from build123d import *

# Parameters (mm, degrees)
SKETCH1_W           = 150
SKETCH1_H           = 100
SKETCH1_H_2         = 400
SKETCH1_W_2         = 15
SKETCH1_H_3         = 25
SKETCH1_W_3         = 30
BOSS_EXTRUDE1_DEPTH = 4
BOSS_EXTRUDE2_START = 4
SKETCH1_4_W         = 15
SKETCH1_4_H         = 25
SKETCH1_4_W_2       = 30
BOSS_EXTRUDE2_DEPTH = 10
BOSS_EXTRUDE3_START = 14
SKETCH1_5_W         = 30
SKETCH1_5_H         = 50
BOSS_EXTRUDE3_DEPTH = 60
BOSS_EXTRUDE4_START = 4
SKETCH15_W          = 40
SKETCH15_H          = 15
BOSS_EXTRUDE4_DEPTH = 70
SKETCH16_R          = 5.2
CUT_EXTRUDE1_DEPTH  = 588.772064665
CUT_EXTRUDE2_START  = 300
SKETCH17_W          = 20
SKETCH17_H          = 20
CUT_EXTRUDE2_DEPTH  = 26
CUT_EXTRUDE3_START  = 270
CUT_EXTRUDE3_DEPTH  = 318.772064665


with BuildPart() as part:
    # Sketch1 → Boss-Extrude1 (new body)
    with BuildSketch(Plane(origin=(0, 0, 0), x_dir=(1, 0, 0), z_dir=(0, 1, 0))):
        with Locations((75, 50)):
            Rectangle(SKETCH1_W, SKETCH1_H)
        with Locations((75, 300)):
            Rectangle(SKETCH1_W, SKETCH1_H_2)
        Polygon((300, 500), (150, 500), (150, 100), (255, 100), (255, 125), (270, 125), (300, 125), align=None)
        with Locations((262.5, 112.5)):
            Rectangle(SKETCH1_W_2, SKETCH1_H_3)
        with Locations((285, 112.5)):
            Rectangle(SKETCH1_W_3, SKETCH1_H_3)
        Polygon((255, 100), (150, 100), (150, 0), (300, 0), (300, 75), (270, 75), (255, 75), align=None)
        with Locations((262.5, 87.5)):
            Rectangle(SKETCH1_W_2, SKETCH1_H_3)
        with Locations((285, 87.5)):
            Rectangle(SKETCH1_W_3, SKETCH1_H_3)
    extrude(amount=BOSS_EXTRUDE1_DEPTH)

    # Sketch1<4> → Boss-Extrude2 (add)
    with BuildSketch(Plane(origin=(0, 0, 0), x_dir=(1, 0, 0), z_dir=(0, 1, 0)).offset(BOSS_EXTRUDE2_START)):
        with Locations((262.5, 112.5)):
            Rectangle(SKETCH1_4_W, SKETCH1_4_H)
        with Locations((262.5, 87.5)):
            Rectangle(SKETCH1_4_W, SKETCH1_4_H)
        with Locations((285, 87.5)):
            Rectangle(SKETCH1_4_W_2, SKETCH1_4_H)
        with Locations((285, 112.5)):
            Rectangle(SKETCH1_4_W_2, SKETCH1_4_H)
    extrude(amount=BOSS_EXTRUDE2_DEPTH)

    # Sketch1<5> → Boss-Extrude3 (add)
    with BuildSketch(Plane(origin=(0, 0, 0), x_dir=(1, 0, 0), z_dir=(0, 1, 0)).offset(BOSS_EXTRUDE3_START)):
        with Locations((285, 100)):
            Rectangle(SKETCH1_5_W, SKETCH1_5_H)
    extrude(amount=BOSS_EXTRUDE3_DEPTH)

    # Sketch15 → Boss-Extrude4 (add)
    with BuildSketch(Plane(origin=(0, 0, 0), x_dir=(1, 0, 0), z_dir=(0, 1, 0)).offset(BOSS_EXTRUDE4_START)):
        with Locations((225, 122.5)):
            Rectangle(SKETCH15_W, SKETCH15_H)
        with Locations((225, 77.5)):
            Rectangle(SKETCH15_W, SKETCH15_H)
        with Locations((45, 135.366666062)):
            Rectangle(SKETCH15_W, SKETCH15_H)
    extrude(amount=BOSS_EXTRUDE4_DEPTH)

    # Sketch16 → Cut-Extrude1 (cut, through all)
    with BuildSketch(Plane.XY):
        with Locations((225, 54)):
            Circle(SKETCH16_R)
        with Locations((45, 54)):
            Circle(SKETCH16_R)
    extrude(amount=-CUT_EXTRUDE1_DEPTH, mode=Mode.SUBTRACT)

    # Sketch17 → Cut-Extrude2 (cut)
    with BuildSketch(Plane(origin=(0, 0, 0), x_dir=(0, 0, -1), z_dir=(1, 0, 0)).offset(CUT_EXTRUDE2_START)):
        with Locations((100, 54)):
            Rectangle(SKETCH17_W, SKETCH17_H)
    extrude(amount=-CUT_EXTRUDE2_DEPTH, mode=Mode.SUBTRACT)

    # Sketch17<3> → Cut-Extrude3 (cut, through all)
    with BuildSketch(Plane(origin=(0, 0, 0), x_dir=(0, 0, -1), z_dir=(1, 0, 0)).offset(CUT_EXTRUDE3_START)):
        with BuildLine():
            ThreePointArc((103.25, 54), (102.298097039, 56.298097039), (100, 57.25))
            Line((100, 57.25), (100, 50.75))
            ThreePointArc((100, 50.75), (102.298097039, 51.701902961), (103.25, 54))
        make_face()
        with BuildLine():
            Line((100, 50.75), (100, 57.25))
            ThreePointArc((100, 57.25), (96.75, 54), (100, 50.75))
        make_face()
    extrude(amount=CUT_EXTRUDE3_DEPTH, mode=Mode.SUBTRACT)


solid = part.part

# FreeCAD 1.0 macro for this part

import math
import FreeCAD as App
import Part
import Sketcher
from FreeCAD import Vector


def add_polygon(sketch, points):
    """Adds a closed chain of lines whose ends are joined by coincident constraints."""
    first, n = sketch.GeometryCount, len(points)
    for a, b in zip(points, points[1:] + points[:1]):
        sketch.addGeometry(Part.LineSegment(App.Vector(*a, 0), App.Vector(*b, 0)), False)
    for i in range(n):
        sketch.addConstraint(Sketcher.Constraint("Coincident", first + i, 2, first + (i + 1) % n, 1))

doc = App.newDocument("Part")
params = doc.addObject("Spreadsheet::Sheet", "Params")
for row, (alias, value) in enumerate([
    ("sketch1_width", "300 mm"),
    ("sketch1_height", "500 mm"),
    ("pad1_length", "4 mm"),
    ("sketch2_width", "45 mm"),
    ("sketch2_height", "50 mm"),
    ("pad2_length", "10 mm"),
    ("sketch3_width", "30 mm"),
    ("sketch3_height", "50 mm"),
    ("pad3_length", "60 mm"),
    ("sketch4_width", "40 mm"),
    ("sketch4_height", "15 mm"),
    ("pad4_length", "70 mm"),
    ("sketch5_diameter", "10.4 mm"),
    ("sketch6_width", "20 mm"),
    ("pocket2_length", "26 mm"),
    ("sketch7_radius", "3.25 mm"),
], start=1):
    params.set(f"A{row}", alias)
    params.set(f"B{row}", "=" + value)
    params.setAlias(f"B{row}", alias)

body = doc.addObject("PartDesign::Body", "Body")

# Sketch on XZ plane
sketch1 = doc.addObject("Sketcher::SketchObject", "Sketch")
body.addObject(sketch1)
sketch1.AttachmentSupport = (doc.XZ_Plane, [""])
sketch1.MapMode = "FlatFace"
add_polygon(sketch1, [(0, 0), (300, 0), (300, -500), (0, -500)])  # lines 0-3
sketch1.addConstraint([
    Sketcher.Constraint("Horizontal", 0),
    Sketcher.Constraint("Vertical", 1),
    Sketcher.Constraint("Horizontal", 2),
    Sketcher.Constraint("Vertical", 3),
    Sketcher.Constraint("Coincident", 3, 2, -1, 1),
    Sketcher.Constraint("DistanceX", 0, 1, 0, 2, 300.0),
    Sketcher.Constraint("DistanceY", 1, 2, 1, 1, 500.0),
])
sketch1.setExpression("Constraints[9]", "Params.sketch1_width")
sketch1.setExpression("Constraints[10]", "Params.sketch1_height")
pad1 = doc.addObject("PartDesign::Pad", "Pad")
body.addObject(pad1)
pad1.Profile = sketch1
pad1.setExpression("Length", "Params.pad1_length")
pad1.Reversed = True

# Sketch on XZ plane
sketch2 = doc.addObject("Sketcher::SketchObject", "Sketch001")
body.addObject(sketch2)
sketch2.AttachmentSupport = (doc.XZ_Plane, [""])
sketch2.MapMode = "FlatFace"
sketch2.AttachmentOffset = App.Placement(Vector(0, 0, -4), App.Rotation())
add_polygon(sketch2, [(255, -125), (255, -75), (300, -75), (300, -125)])  # lines 0-3
sketch2.addConstraint([
    Sketcher.Constraint("Vertical", 0),
    Sketcher.Constraint("Horizontal", 1),
    Sketcher.Constraint("Vertical", 2),
    Sketcher.Constraint("Horizontal", 3),
    Sketcher.Constraint("DistanceX", 1, 1, 1, 2, 45.0),
    Sketcher.Constraint("DistanceY", 0, 1, 0, 2, 50.0),
    Sketcher.Constraint("DistanceX", -1, 1, 0, 2, 255.0),
    Sketcher.Constraint("DistanceY", 0, 2, -1, 1, 75.0),
])
sketch2.setExpression("Constraints[8]", "Params.sketch2_width")
sketch2.setExpression("Constraints[9]", "Params.sketch2_height")
pad2 = doc.addObject("PartDesign::Pad", "Pad001")
body.addObject(pad2)
pad2.Profile = sketch2
pad2.setExpression("Length", "Params.pad2_length")
pad2.Reversed = True

# Sketch on XZ plane
sketch3 = doc.addObject("Sketcher::SketchObject", "Sketch002")
body.addObject(sketch3)
sketch3.AttachmentSupport = (doc.XZ_Plane, [""])
sketch3.MapMode = "FlatFace"
sketch3.AttachmentOffset = App.Placement(Vector(0, 0, -14), App.Rotation())
add_polygon(sketch3, [(270, -125), (270, -75), (300, -75), (300, -125)])  # lines 0-3
sketch3.addConstraint([
    Sketcher.Constraint("Vertical", 0),
    Sketcher.Constraint("Horizontal", 1),
    Sketcher.Constraint("Vertical", 2),
    Sketcher.Constraint("Horizontal", 3),
    Sketcher.Constraint("DistanceX", 1, 1, 1, 2, 30.0),
    Sketcher.Constraint("DistanceY", 0, 1, 0, 2, 50.0),
    Sketcher.Constraint("DistanceX", -1, 1, 0, 2, 270.0),
    Sketcher.Constraint("DistanceY", 0, 2, -1, 1, 75.0),
])
sketch3.setExpression("Constraints[8]", "Params.sketch3_width")
sketch3.setExpression("Constraints[9]", "Params.sketch3_height")
pad3 = doc.addObject("PartDesign::Pad", "Pad002")
body.addObject(pad3)
pad3.Profile = sketch3
pad3.setExpression("Length", "Params.pad3_length")
pad3.Reversed = True

# Sketch on XZ plane
sketch4 = doc.addObject("Sketcher::SketchObject", "Sketch003")
body.addObject(sketch4)
sketch4.AttachmentSupport = (doc.XZ_Plane, [""])
sketch4.MapMode = "FlatFace"
sketch4.AttachmentOffset = App.Placement(Vector(0, 0, -4), App.Rotation())
add_polygon(sketch4, [(205, -130), (205, -115), (245, -115), (245, -130)])  # lines 0-3
add_polygon(sketch4, [(205, -85), (205, -70), (245, -70), (245, -85)])  # lines 4-7
add_polygon(sketch4, [(25, -143), (25, -128), (65, -128), (65, -143)])  # lines 8-11
sketch4.addConstraint([
    Sketcher.Constraint("Vertical", 0),
    Sketcher.Constraint("Horizontal", 1),
    Sketcher.Constraint("Vertical", 2),
    Sketcher.Constraint("Horizontal", 3),
    Sketcher.Constraint("Vertical", 4),
    Sketcher.Constraint("Horizontal", 5),
    Sketcher.Constraint("Vertical", 6),
    Sketcher.Constraint("Horizontal", 7),
    Sketcher.Constraint("Vertical", 8),
    Sketcher.Constraint("Horizontal", 9),
    Sketcher.Constraint("Vertical", 10),
    Sketcher.Constraint("Horizontal", 11),
    Sketcher.Constraint("Vertical", 3, 2, 4, 2),
    Sketcher.Constraint("Vertical", 2, 2, 5, 2),
    Sketcher.Constraint("Equal", 7, 9),
    Sketcher.Constraint("Equal", 2, 4),
    Sketcher.Constraint("Equal", 6, 8),
    Sketcher.Constraint("DistanceX", 1, 1, 1, 2, 40.0),
    Sketcher.Constraint("DistanceY", 0, 1, 0, 2, 15.0),
    Sketcher.Constraint("DistanceX", -1, 1, 0, 2, 205.0),
    Sketcher.Constraint("DistanceY", 0, 2, -1, 1, 115.0),
    Sketcher.Constraint("DistanceY", 4, 2, -1, 1, 70.0),
    Sketcher.Constraint("DistanceX", -1, 1, 8, 2, 25.0),
    Sketcher.Constraint("DistanceY", 8, 2, -1, 1, 127.866666),
])
sketch4.setExpression("Constraints[29]", "Params.sketch4_width")
sketch4.setExpression("Constraints[30]", "Params.sketch4_height")
pad4 = doc.addObject("PartDesign::Pad", "Pad003")
body.addObject(pad4)
pad4.Profile = sketch4
pad4.setExpression("Length", "Params.pad4_length")
pad4.Reversed = True

# Sketch on XY plane
sketch5 = doc.addObject("Sketcher::SketchObject", "Sketch004")
body.addObject(sketch5)
sketch5.AttachmentSupport = (doc.XY_Plane, [""])
sketch5.MapMode = "FlatFace"
sketch5.addGeometry([
    Part.Circle(Vector(225, 54, 0), Vector(0, 0, 1), 5),
    Part.Circle(Vector(45, 54, 0), Vector(0, 0, 1), 5),
], False)
sketch5.addConstraint([
    Sketcher.Constraint("Equal", 0, 1),
    Sketcher.Constraint("Horizontal", 0, 3, 1, 3),
    Sketcher.Constraint("Diameter", 0, 10.4),
    Sketcher.Constraint("DistanceX", -1, 1, 0, 3, 225.0),
    Sketcher.Constraint("DistanceY", -1, 1, 0, 3, 54.0),
    Sketcher.Constraint("DistanceX", -1, 1, 1, 3, 45.0),
])
sketch5.setExpression("Constraints[2]", "Params.sketch5_diameter")
pocket1 = doc.addObject("PartDesign::Pocket", "Pocket")
body.addObject(pocket1)
pocket1.Profile = sketch5
pocket1.Type = "ThroughAll"

# Sketch on YZ plane
sketch6 = doc.addObject("Sketcher::SketchObject", "Sketch005")
body.addObject(sketch6)
sketch6.AttachmentSupport = (doc.YZ_Plane, [""])
sketch6.MapMode = "FlatFace"
sketch6.AttachmentOffset = App.Placement(Vector(0, 0, 300), App.Rotation())
add_polygon(sketch6, [(64, -90), (44, -90), (44, -110), (64, -110)])  # lines 0-3
sketch6.addConstraint([
    Sketcher.Constraint("Horizontal", 0),
    Sketcher.Constraint("Vertical", 1),
    Sketcher.Constraint("Horizontal", 2),
    Sketcher.Constraint("Vertical", 3),
    Sketcher.Constraint("Equal", 2, 1),
    Sketcher.Constraint("DistanceX", 0, 2, 0, 1, 20.0),
    Sketcher.Constraint("DistanceX", -1, 1, 0, 2, 44.0),
    Sketcher.Constraint("DistanceY", 0, 2, -1, 1, 90.0),
])
sketch6.setExpression("Constraints[9]", "Params.sketch6_width")
pocket2 = doc.addObject("PartDesign::Pocket", "Pocket001")
body.addObject(pocket2)
pocket2.Profile = sketch6
pocket2.setExpression("Length", "Params.pocket2_length")

# Sketch on YZ plane
sketch7 = doc.addObject("Sketcher::SketchObject", "Sketch006")
body.addObject(sketch7)
sketch7.AttachmentSupport = (doc.YZ_Plane, [""])
sketch7.MapMode = "FlatFace"
sketch7.AttachmentOffset = App.Placement(Vector(0, 0, 270), App.Rotation())
sketch7.addGeometry([
    Part.ArcOfCircle(Part.Circle(Vector(54, -100, 0), Vector(0, 0, 1), 3.2), math.radians(-90), math.radians(0)),
    Part.ArcOfCircle(Part.Circle(Vector(54, -100, 0), Vector(0, 0, 1), 3.2), math.radians(0), math.radians(180)),
    Part.ArcOfCircle(Part.Circle(Vector(54, -100, 0), Vector(0, 0, 1), 3.2), math.radians(180), math.radians(270)),
], False)
sketch7.addConstraint([
    Sketcher.Constraint("Tangent", 0, 2, 1, 1),
    Sketcher.Constraint("Tangent", 1, 2, 2, 1),
    Sketcher.Constraint("Tangent", 2, 2, 0, 1),
    Sketcher.Constraint("Horizontal", 2, 3, 0, 2),
    Sketcher.Constraint("Horizontal", 0, 2, 1, 2),
    Sketcher.Constraint("Vertical", 1, 3, 2, 2),
    Sketcher.Constraint("Radius", 0, 3.25),
    Sketcher.Constraint("DistanceX", -1, 1, 0, 3, 54.0),
    Sketcher.Constraint("DistanceY", 0, 3, -1, 1, 100.0),
])
sketch7.setExpression("Constraints[6]", "Params.sketch7_radius")
pocket3 = doc.addObject("PartDesign::Pocket", "Pocket002")
body.addObject(pocket3)
pocket3.Profile = sketch7
pocket3.Type = "ThroughAll"
pocket3.Reversed = True

doc.recompute()
